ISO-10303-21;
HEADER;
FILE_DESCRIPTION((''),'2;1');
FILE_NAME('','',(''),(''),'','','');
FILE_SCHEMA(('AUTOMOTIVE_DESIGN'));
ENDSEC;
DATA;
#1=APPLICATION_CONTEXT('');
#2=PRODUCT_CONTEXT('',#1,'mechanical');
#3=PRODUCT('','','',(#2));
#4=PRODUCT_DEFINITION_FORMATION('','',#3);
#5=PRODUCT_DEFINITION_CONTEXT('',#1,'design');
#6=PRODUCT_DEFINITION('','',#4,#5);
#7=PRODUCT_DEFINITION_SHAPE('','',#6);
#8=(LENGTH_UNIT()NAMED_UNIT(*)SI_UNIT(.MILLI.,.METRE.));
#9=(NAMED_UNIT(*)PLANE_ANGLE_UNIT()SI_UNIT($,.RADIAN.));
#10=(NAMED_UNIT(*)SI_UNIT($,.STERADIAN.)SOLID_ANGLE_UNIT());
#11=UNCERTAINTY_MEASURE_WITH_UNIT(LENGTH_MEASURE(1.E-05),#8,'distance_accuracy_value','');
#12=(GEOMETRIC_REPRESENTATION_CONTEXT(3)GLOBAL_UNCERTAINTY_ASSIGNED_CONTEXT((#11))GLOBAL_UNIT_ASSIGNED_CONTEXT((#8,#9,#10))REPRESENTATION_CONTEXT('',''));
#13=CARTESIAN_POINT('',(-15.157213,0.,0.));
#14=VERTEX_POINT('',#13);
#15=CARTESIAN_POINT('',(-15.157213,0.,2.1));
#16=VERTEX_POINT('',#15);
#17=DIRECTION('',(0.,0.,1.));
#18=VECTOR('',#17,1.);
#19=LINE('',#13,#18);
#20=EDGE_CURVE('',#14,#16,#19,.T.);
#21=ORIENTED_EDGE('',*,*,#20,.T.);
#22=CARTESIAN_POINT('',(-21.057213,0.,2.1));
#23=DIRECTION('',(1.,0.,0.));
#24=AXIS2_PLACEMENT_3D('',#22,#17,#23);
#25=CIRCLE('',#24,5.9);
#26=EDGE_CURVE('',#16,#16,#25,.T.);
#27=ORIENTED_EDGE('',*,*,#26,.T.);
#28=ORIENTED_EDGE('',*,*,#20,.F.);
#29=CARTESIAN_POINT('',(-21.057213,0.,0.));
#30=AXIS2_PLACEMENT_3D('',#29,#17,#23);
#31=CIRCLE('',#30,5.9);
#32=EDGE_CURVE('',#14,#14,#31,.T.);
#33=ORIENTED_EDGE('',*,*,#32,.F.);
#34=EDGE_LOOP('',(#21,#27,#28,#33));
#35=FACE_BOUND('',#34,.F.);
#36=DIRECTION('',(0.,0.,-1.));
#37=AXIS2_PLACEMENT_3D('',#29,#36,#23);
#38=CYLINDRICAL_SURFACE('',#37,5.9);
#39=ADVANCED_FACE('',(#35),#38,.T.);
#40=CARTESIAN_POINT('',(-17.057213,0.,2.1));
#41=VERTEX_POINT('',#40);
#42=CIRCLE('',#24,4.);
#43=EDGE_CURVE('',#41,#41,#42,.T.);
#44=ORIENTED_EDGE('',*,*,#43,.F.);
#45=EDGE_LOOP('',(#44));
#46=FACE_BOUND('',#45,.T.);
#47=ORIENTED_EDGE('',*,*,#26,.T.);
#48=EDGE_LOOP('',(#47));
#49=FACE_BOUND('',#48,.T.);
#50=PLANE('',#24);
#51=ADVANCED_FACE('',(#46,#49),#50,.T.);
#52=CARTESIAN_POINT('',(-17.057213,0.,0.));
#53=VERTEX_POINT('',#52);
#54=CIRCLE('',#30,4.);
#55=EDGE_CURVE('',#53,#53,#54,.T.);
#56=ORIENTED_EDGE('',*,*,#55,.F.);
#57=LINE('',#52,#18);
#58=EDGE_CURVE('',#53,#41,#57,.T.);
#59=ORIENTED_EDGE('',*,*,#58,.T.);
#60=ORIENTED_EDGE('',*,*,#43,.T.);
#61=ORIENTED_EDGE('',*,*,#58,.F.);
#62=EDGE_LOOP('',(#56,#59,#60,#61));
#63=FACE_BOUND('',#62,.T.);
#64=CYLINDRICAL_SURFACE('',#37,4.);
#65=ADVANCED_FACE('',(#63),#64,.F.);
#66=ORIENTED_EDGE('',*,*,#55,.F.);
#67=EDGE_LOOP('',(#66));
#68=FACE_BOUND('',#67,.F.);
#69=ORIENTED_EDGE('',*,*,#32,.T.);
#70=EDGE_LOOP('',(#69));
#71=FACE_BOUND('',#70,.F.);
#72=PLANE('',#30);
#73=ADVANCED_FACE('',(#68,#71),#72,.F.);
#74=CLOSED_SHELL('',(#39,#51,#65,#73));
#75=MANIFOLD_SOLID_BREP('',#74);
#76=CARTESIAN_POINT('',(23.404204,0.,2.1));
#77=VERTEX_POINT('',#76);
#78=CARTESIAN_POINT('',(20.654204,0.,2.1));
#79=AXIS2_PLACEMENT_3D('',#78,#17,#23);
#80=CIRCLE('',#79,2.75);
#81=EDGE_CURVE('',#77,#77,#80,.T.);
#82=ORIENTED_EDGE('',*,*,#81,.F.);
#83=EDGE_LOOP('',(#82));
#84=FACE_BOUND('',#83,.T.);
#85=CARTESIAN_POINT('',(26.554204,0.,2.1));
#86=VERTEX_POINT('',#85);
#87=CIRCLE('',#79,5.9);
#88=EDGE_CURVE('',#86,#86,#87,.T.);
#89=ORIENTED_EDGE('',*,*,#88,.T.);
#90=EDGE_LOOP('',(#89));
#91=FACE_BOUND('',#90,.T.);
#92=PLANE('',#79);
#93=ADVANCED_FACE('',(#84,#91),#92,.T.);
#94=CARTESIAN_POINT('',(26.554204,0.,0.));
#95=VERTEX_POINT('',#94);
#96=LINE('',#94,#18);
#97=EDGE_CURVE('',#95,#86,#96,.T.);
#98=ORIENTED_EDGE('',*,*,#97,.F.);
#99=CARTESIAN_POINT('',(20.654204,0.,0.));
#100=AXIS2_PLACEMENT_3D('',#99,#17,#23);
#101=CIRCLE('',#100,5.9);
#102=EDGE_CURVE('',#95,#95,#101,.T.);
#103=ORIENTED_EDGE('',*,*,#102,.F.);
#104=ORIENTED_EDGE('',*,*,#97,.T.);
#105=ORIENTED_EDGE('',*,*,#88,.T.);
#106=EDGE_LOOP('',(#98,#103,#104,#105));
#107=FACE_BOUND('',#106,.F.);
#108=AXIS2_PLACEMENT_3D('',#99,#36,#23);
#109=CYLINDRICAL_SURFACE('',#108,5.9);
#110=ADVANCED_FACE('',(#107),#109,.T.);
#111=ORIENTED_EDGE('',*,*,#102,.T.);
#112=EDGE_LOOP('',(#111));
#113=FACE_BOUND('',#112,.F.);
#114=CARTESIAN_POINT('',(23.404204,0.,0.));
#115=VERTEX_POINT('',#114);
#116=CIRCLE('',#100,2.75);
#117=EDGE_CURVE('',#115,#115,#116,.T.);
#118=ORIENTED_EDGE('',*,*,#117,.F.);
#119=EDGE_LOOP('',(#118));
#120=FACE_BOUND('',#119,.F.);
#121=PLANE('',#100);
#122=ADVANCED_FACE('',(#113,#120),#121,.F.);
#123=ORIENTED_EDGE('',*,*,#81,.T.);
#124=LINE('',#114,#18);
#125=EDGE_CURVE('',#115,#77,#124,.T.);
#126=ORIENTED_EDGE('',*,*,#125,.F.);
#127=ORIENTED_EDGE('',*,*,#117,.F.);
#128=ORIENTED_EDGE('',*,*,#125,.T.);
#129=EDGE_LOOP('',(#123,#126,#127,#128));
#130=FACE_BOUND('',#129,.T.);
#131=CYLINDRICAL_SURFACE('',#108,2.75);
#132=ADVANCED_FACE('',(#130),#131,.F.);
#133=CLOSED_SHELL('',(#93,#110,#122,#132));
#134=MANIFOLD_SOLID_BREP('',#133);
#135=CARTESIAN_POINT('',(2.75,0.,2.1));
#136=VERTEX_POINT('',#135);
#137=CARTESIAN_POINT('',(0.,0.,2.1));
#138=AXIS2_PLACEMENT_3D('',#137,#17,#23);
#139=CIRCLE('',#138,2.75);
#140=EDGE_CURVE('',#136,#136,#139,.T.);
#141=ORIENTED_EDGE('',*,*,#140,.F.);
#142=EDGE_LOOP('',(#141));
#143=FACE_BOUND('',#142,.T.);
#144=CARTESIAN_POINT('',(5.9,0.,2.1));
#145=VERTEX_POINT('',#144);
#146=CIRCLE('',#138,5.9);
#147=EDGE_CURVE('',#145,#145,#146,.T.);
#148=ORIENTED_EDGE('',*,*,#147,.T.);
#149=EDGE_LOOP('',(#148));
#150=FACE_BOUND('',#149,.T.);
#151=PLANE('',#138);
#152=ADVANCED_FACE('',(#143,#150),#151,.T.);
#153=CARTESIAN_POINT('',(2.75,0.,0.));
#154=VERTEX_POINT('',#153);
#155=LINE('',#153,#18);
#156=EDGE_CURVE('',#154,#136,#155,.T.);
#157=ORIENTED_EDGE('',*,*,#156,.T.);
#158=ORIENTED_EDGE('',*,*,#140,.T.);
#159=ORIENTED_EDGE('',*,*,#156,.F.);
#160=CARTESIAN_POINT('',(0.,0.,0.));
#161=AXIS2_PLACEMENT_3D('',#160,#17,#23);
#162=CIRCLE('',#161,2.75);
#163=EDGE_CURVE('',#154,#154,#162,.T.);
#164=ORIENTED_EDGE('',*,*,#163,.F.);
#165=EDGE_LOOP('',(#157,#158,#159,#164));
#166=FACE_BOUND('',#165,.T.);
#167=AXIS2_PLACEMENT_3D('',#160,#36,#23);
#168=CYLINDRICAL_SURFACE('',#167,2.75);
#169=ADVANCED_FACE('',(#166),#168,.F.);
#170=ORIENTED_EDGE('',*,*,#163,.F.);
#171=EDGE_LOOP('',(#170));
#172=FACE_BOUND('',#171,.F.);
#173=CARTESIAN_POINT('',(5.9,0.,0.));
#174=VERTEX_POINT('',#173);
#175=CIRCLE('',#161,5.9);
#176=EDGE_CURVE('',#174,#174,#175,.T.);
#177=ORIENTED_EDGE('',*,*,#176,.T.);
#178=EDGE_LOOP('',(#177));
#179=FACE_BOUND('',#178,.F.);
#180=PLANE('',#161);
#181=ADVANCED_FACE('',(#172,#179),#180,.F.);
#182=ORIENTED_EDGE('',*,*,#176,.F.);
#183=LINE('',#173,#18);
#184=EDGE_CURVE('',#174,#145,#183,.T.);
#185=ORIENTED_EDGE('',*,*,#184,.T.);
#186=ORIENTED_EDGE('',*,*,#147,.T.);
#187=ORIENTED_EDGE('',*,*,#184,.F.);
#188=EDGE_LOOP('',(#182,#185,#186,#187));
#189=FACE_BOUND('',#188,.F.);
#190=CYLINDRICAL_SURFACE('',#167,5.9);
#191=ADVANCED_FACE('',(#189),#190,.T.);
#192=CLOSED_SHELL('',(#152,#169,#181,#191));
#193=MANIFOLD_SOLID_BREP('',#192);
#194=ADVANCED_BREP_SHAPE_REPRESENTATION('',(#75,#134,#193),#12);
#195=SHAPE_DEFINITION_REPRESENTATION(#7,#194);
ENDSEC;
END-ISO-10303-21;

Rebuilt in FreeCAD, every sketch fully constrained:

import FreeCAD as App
import Part
import Sketcher

doc = App.newDocument("Part")
params = doc.addObject("Spreadsheet::Sheet", "Params")
for row, (alias, value) in enumerate([
    ("sketch1_diameter", "8 mm"),
    ("sketch1_diameter2", "11.8 mm"),
    ("sketch1_diameter3", "5.5 mm"),
    ("pad1_length", "2.1 mm"),
], start=1):
    params.set(f"A{row}", alias)
    params.set(f"B{row}", "=" + value)
    params.setAlias(f"B{row}", alias)

body = doc.addObject("PartDesign::Body", "Body")
body.AllowCompound = True

# Sketch on XY plane
sketch1 = body.newObject("Sketcher::SketchObject", "Sketch")
sketch1.AttachmentSupport = (doc.getObject("XY_Plane"), [""])
sketch1.MapMode = "FlatFace"
sketch1.addGeometry([
    Part.Circle(App.Vector(0, 0, 0), App.Vector(0, 0, 1), 5.9),  # 0
    Part.Circle(App.Vector(0, 0, 0), App.Vector(0, 0, 1), 2.8),  # 1
    Part.Circle(App.Vector(-21.1, 0, 0), App.Vector(0, 0, 1), 5.9),  # 2
    Part.Circle(App.Vector(-21.1, 0, 0), App.Vector(0, 0, 1), 4),  # 3
    Part.Circle(App.Vector(20.7, 0, 0), App.Vector(0, 0, 1), 5.9),  # 4
    Part.Circle(App.Vector(20.7, 0, 0), App.Vector(0, 0, 1), 2.8),  # 5
], False)
sketch1.addConstraint([
    Sketcher.Constraint("Coincident", 0, 3, -1, 1),
    Sketcher.Constraint("Coincident", 1, 3, -1, 1),
    Sketcher.Constraint("Coincident", 3, 3, 2, 3),
    Sketcher.Constraint("Coincident", 5, 3, 4, 3),
    Sketcher.Constraint("Equal", 0, 2),
    Sketcher.Constraint("Equal", 2, 4),
    Sketcher.Constraint("Equal", 1, 5),
    Sketcher.Constraint("PointOnObject", 2, 3, -1),
    Sketcher.Constraint("PointOnObject", 4, 3, -1),
    Sketcher.Constraint("Diameter", 3, 8.0),
    Sketcher.Constraint("Diameter", 0, 11.8),
    Sketcher.Constraint("Diameter", 1, 5.5),
    Sketcher.Constraint("DistanceX", 2, 3, -1, 1, 21.057213),
    Sketcher.Constraint("DistanceX", -1, 1, 4, 3, 20.654204),
])
sketch1.setExpression("Constraints[9]", "Params.sketch1_diameter")
sketch1.setExpression("Constraints[10]", "Params.sketch1_diameter2")
sketch1.setExpression("Constraints[11]", "Params.sketch1_diameter3")
pad1 = body.newObject("PartDesign::Pad", "Pad")
pad1.Profile = sketch1
pad1.setExpression("Length", "Params.pad1_length")

doc.recompute()
